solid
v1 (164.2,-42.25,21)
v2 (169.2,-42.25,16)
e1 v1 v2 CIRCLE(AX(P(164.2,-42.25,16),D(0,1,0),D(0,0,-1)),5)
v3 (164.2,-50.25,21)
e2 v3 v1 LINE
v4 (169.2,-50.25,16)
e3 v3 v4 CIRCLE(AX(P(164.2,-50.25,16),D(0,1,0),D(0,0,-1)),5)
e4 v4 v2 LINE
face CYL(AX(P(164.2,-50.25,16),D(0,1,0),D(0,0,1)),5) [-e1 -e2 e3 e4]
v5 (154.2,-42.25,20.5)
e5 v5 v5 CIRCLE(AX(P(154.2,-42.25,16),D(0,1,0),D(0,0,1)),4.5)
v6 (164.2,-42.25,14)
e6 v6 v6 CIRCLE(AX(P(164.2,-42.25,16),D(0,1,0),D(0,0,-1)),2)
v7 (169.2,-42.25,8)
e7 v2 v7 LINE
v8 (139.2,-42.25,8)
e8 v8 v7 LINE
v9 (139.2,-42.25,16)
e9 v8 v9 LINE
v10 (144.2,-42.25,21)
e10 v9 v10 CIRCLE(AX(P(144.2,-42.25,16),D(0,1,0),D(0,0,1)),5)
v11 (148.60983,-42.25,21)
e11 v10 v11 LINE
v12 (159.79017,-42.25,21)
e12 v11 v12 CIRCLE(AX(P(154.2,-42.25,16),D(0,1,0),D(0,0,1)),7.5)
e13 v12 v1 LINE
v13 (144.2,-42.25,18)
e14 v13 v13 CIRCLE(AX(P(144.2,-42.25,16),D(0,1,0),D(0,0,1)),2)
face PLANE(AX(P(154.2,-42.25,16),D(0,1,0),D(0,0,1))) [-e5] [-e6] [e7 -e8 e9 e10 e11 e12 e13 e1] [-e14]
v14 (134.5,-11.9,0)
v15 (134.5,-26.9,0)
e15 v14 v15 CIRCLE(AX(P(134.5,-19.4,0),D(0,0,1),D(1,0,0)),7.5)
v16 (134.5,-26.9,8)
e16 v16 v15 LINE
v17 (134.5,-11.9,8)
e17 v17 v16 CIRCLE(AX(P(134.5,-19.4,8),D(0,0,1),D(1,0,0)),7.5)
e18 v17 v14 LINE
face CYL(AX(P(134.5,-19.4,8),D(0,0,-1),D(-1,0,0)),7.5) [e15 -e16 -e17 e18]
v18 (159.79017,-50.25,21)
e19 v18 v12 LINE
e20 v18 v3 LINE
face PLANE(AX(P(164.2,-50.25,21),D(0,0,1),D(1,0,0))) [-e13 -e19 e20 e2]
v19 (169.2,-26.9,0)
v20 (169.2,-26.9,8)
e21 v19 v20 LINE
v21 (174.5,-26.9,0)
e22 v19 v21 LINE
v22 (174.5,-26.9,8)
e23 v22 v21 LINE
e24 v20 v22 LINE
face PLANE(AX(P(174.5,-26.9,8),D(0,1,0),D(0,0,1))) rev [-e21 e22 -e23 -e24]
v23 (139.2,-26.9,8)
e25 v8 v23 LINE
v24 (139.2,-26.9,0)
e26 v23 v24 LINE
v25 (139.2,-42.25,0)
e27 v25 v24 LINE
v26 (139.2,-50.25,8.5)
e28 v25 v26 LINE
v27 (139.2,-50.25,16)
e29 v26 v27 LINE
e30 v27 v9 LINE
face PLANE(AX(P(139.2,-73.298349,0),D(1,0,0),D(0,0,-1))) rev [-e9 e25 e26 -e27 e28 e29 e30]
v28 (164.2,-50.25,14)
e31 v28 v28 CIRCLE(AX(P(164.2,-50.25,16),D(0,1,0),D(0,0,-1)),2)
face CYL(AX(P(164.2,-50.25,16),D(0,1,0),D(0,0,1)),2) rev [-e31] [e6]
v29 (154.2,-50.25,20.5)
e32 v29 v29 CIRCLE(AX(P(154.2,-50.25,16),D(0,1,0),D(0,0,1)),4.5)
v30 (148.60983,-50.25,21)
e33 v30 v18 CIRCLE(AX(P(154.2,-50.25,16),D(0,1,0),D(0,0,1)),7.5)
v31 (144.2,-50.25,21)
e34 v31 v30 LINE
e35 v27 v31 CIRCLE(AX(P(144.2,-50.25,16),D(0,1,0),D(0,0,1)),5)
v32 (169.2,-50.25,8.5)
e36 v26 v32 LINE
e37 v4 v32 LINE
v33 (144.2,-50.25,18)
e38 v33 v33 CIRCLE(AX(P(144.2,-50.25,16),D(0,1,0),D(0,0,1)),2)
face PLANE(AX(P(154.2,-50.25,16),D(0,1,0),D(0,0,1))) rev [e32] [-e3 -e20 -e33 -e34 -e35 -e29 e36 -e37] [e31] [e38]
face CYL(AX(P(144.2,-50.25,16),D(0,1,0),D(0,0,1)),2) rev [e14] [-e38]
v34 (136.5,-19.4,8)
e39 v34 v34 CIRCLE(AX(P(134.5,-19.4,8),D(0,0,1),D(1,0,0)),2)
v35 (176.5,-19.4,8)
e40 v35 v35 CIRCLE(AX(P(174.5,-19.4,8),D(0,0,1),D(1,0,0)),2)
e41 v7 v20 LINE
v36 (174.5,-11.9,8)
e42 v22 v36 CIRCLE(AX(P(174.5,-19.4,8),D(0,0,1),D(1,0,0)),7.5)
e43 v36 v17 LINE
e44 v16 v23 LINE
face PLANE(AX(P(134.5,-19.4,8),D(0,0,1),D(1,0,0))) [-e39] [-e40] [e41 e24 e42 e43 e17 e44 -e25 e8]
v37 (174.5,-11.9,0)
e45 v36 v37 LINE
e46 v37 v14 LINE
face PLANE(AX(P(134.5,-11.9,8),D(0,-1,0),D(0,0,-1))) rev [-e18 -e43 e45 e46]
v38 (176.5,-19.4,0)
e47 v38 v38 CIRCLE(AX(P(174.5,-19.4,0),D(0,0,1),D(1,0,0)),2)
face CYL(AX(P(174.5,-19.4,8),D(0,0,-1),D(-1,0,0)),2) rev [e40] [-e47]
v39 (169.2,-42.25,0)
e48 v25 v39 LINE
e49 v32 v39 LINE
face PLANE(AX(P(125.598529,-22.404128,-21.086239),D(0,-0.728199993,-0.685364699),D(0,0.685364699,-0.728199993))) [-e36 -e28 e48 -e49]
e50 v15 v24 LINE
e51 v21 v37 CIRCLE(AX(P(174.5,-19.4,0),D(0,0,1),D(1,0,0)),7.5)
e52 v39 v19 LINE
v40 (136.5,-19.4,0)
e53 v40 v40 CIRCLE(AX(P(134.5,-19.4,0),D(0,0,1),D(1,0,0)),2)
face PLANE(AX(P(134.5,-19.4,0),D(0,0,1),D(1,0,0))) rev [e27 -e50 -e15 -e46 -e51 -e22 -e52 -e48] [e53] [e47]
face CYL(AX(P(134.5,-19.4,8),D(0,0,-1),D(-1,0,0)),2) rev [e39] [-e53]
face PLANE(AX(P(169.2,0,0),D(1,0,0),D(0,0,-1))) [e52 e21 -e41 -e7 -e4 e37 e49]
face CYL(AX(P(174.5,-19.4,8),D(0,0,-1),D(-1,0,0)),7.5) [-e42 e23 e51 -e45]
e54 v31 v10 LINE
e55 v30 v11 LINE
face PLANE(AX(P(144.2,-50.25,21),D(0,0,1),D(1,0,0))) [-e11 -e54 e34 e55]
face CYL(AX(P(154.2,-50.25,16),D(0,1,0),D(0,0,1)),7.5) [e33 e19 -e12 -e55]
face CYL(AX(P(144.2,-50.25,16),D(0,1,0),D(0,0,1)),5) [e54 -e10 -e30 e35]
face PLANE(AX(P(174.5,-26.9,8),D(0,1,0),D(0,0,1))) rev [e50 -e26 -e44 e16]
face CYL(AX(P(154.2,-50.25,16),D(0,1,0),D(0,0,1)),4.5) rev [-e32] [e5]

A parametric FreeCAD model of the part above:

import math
import FreeCAD as App
import Part
import Sketcher

V = App.Vector


def add_polygon(sketch, points):
    """Adds a closed chain of lines whose ends are joined by coincident constraints."""
    first, n = sketch.GeometryCount, len(points)
    for a, b in zip(points, points[1:] + points[:1]):
        sketch.addGeometry(Part.LineSegment(App.Vector(*a, 0), App.Vector(*b, 0)), False)
    for i in range(n):
        sketch.addConstraint(Sketcher.Constraint("Coincident", first + i, 2, first + (i + 1) % n, 1))

doc = App.newDocument("Part")
body = doc.addObject("PartDesign::Body", "Body")

sketch1 = body.newObject("Sketcher::SketchObject", "Sketch")
sketch1.AttachmentSupport = (doc.getObject("XY_Plane"), [""])
sketch1.MapMode = "FlatFace"
sketch1.addGeometry([
    Part.LineSegment(V(174.5, -11.9, 0), V(134.5, -11.9, 0)),
    Part.ArcOfCircle(Part.Circle(V(134.5, -19.4, 0), V(0, 0, 1), 7.5), math.radians(90), math.radians(270)),
    Part.LineSegment(V(134.5, -26.9, 0), V(174.5, -26.9, 0)),
    Part.ArcOfCircle(Part.Circle(V(174.5, -19.4, 0), V(0, 0, 1), 7.5), math.radians(-90), math.radians(90)),
    Part.Circle(V(174.5, -19.4, 0), V(0, 0, 1), 2),
    Part.Circle(V(134.5, -19.4, 0), V(0, 0, 1), 2),
], False)
sketch1.addConstraint([
    Sketcher.Constraint("Tangent", 0, 2, 1, 1),
    Sketcher.Constraint("Tangent", 1, 2, 2, 1),
    Sketcher.Constraint("Tangent", 2, 2, 3, 1),
    Sketcher.Constraint("Tangent", 3, 2, 0, 1),
    Sketcher.Constraint("Horizontal", 0),
    Sketcher.Constraint("Horizontal", 2),
    Sketcher.Constraint("Coincident", 4, 3, 3, 3),
    Sketcher.Constraint("Coincident", 5, 3, 1, 3),
    Sketcher.Constraint("Equal", 4, 5),
    Sketcher.Constraint("Diameter", 4, 4.0),
    Sketcher.Constraint("Radius", 1, 7.5),
    Sketcher.Constraint("DistanceX", 0, 2, 0, 1, 40.0),
    Sketcher.Constraint("DistanceX", -1, 1, 1, 3, 134.5),
    Sketcher.Constraint("DistanceY", 1, 3, -1, 1, 19.4),
])
pad1 = body.newObject("PartDesign::Pad", "Pad")
pad1.Profile = sketch1
pad1.Length = 8

sketch2 = body.newObject("Sketcher::SketchObject", "Sketch001")
sketch2.AttachmentSupport = (doc.getObject("XZ_Plane"), [""])
sketch2.MapMode = "FlatFace"
sketch2.AttachmentOffset = App.Placement(V(0, 0, 26.9), App.Rotation())
add_polygon(sketch2, [(169.2, 0), (169.2, 8), (139.2, 8), (139.2, 0)])
sketch2.addConstraint([
    Sketcher.Constraint("Vertical", 0),
    Sketcher.Constraint("Horizontal", 1),
    Sketcher.Constraint("Vertical", 2),
    Sketcher.Constraint("Horizontal", 3),
    Sketcher.Constraint("PointOnObject", 2, 2, -1),
    Sketcher.Constraint("DistanceX", 1, 2, 1, 1, 30.0),
    Sketcher.Constraint("DistanceY", 0, 1, 0, 2, 8.0),
    Sketcher.Constraint("DistanceX", -1, 1, 0, 2, 169.2),
])
pad2 = body.newObject("PartDesign::Pad", "Pad001")
pad2.Profile = sketch2
pad2.Length = 15.35
body2 = doc.addObject("PartDesign::Body", "Body001")

sketch3 = body2.newObject("Sketcher::SketchObject", "Sketch002")
sketch3.AttachmentSupport = (doc.getObject("XZ_Plane001"), [""])
sketch3.MapMode = "FlatFace"
sketch3.AttachmentOffset = App.Placement(V(0, 0, 42.25), App.Rotation())
sketch3.addGeometry([
    Part.Circle(V(154.2, 16, 0), V(0, 0, 1), 7.5),
    Part.Circle(V(154.2, 16, 0), V(0, 0, 1), 4.5),
], False)
sketch3.addConstraint([
    Sketcher.Constraint("Coincident", 1, 3, 0, 3),
    Sketcher.Constraint("Diameter", 0, 15.0),
    Sketcher.Constraint("Diameter", 1, 9.0),
    Sketcher.Constraint("DistanceY", -1, 1, 0, 3, 16.0),
    Sketcher.Constraint("DistanceX", -1, 1, 0, 3, 154.2),
])
pad3 = body2.newObject("PartDesign::Pad", "Pad002")
pad3.Profile = sketch3
pad3.Length = 8

sketch4 = body2.newObject("Sketcher::SketchObject", "Sketch003")
sketch4.AttachmentSupport = (doc.getObject("XZ_Plane001"), [""])
sketch4.MapMode = "FlatFace"
sketch4.AttachmentOffset = App.Placement(V(0, 0, 42.25), App.Rotation())
sketch4.addGeometry([
    Part.LineSegment(V(148.60983, 11, 0), V(144.2, 11, 0)),
    Part.ArcOfCircle(Part.Circle(V(144.2, 16, 0), V(0, 0, 1), 5), math.radians(90), math.radians(270)),
    Part.LineSegment(V(144.2, 21, 0), V(148.60983, 21, 0)),
    Part.ArcOfCircle(Part.Circle(V(154.2, 16, 0), V(0, 0, 1), 7.5), math.radians(138.189685), math.radians(221.810315)),
    Part.Circle(V(144.2, 16, 0), V(0, 0, 1), 2),
    Part.LineSegment(V(159.79017, 21, 0), V(164.2, 21, 0)),
    Part.ArcOfCircle(Part.Circle(V(164.2, 16, 0), V(0, 0, 1), 5), math.radians(-90), math.radians(90)),
    Part.LineSegment(V(164.2, 11, 0), V(159.79017, 11, 0)),
    Part.ArcOfCircle(Part.Circle(V(154.2, 16, 0), V(0, 0, 1), 7.5), math.radians(-41.810315), math.radians(41.810315)),
    Part.Circle(V(164.2, 16, 0), V(0, 0, 1), 2),
], False)
sketch4.addConstraint([
    Sketcher.Constraint("Tangent", 0, 2, 1, 2),
    Sketcher.Constraint("Tangent", 1, 1, 2, 1),
    Sketcher.Constraint("Coincident", 2, 2, 3, 1),
    Sketcher.Constraint("Coincident", 3, 2, 0, 1),
    Sketcher.Constraint("Tangent", 5, 2, 6, 2),
    Sketcher.Constraint("Tangent", 6, 1, 7, 1),
    Sketcher.Constraint("Coincident", 7, 2, 8, 1),
    Sketcher.Constraint("Coincident", 8, 2, 5, 1),
    Sketcher.Constraint("Horizontal", 0),
    Sketcher.Constraint("Horizontal", 2),
    Sketcher.Constraint("Horizontal", 5),
    Sketcher.Constraint("Horizontal", 7),
    Sketcher.Constraint("Coincident", 4, 3, 1, 3),
    Sketcher.Constraint("Coincident", 8, 3, 3, 3),
    Sketcher.Constraint("Coincident", 9, 3, 6, 3),
    Sketcher.Constraint("Equal", 1, 6),
    Sketcher.Constraint("Equal", 3, 8),
    Sketcher.Constraint("Equal", 4, 9),
    Sketcher.Constraint("Horizontal", 1, 3, 3, 3),
    Sketcher.Constraint("Horizontal", 4, 3, 6, 3),
    Sketcher.Constraint("Equal", 2, 5),
    Sketcher.Constraint("Diameter", 4, 4.0),
    Sketcher.Constraint("Radius", 1, 5.0),
    Sketcher.Constraint("Radius", 3, 7.5),
    Sketcher.Constraint("DistanceY", -1, 1, 1, 3, 16.0),
    Sketcher.Constraint("DistanceX", 1, 3, 3, 3, 10.0),
    Sketcher.Constraint("DistanceX", -1, 1, 1, 3, 144.2),
])
pad4 = body2.newObject("PartDesign::Pad", "Pad003")
pad4.Profile = sketch4
pad4.Length = 8
body.AllowCompound = True
doc.recompute()

boolean = body.newObject("PartDesign::Boolean", "Boolean")
boolean.Type = "Fuse"
boolean.addObjects([body2])

sketch5 = body.newObject("Sketcher::SketchObject", "Sketch004")
sketch5.AttachmentSupport = (doc.getObject("YZ_Plane"), [""])
sketch5.MapMode = "FlatFace"
sketch5.AttachmentOffset = App.Placement(V(0, 0, 169.2), App.Rotation())
add_polygon(sketch5, [(-50.25, 11), (-50.25, 8.5), (-42.25, 0), (-42.25, 11)])
sketch5.addConstraint([
    Sketcher.Constraint("Vertical", 0),
    Sketcher.Constraint("Vertical", 2),
    Sketcher.Constraint("Horizontal", 3),
    Sketcher.Constraint("PointOnObject", 1, 2, -1),
    Sketcher.Constraint("DistanceX", 3, 2, 3, 1, 8.0),
    Sketcher.Constraint("DistanceY", 2, 1, 2, 2, 11.0),
    Sketcher.Constraint("DistanceY", 0, 2, 0, 1, 2.5),
    Sketcher.Constraint("DistanceX", 0, 2, -1, 1, 50.25),
])
pad5 = body.newObject("PartDesign::Pad", "Pad004")
pad5.Profile = sketch5
pad5.Length = 30
pad5.Reversed = True

sketch6 = body.newObject("Sketcher::SketchObject", "Sketch005")
sketch6.AttachmentSupport = (doc.getObject("XZ_Plane"), [""])
sketch6.MapMode = "FlatFace"
sketch6.AttachmentOffset = App.Placement(V(0, 0, 42.25), App.Rotation())
sketch6.addGeometry([
    Part.LineSegment(V(139.2, 11, 0), V(139.2, 16, 0)),
    Part.ArcOfCircle(Part.Circle(V(144.2, 16, 0), V(0, 0, 1), 5), math.radians(180), math.radians(270)),
    Part.LineSegment(V(144.2, 11, 0), V(139.2, 11, 0)),
    Part.LineSegment(V(169.2, 11, 0), V(164.2, 11, 0)),
    Part.ArcOfCircle(Part.Circle(V(164.2, 16, 0), V(0, 0, 1), 5), math.radians(-90), math.radians(0)),
    Part.LineSegment(V(169.2, 16, 0), V(169.2, 11, 0)),
], False)
sketch6.addConstraint([
    Sketcher.Constraint("Tangent", 0, 2, 1, 1),
    Sketcher.Constraint("Tangent", 1, 2, 2, 1),
    Sketcher.Constraint("Coincident", 2, 2, 0, 1),
    Sketcher.Constraint("Tangent", 3, 2, 4, 1),
    Sketcher.Constraint("Tangent", 4, 2, 5, 1),
    Sketcher.Constraint("Coincident", 5, 2, 3, 1),
    Sketcher.Constraint("Vertical", 0),
    Sketcher.Constraint("Horizontal", 2),
    Sketcher.Constraint("Horizontal", 3),
    Sketcher.Constraint("Vertical", 5),
    Sketcher.Constraint("Equal", 1, 4),
    Sketcher.Constraint("Horizontal", 1, 3, 4, 3),
    Sketcher.Constraint("Radius", 1, 5.0),
    Sketcher.Constraint("DistanceY", -1, 1, 1, 3, 16.0),
    Sketcher.Constraint("DistanceX", 1, 3, 4, 3, 20.0),
    Sketcher.Constraint("DistanceX", -1, 1, 1, 3, 144.2),
])
pad6 = body.newObject("PartDesign::Pad", "Pad005")
pad6.Profile = sketch6
pad6.Length = 8

doc.recompute()
